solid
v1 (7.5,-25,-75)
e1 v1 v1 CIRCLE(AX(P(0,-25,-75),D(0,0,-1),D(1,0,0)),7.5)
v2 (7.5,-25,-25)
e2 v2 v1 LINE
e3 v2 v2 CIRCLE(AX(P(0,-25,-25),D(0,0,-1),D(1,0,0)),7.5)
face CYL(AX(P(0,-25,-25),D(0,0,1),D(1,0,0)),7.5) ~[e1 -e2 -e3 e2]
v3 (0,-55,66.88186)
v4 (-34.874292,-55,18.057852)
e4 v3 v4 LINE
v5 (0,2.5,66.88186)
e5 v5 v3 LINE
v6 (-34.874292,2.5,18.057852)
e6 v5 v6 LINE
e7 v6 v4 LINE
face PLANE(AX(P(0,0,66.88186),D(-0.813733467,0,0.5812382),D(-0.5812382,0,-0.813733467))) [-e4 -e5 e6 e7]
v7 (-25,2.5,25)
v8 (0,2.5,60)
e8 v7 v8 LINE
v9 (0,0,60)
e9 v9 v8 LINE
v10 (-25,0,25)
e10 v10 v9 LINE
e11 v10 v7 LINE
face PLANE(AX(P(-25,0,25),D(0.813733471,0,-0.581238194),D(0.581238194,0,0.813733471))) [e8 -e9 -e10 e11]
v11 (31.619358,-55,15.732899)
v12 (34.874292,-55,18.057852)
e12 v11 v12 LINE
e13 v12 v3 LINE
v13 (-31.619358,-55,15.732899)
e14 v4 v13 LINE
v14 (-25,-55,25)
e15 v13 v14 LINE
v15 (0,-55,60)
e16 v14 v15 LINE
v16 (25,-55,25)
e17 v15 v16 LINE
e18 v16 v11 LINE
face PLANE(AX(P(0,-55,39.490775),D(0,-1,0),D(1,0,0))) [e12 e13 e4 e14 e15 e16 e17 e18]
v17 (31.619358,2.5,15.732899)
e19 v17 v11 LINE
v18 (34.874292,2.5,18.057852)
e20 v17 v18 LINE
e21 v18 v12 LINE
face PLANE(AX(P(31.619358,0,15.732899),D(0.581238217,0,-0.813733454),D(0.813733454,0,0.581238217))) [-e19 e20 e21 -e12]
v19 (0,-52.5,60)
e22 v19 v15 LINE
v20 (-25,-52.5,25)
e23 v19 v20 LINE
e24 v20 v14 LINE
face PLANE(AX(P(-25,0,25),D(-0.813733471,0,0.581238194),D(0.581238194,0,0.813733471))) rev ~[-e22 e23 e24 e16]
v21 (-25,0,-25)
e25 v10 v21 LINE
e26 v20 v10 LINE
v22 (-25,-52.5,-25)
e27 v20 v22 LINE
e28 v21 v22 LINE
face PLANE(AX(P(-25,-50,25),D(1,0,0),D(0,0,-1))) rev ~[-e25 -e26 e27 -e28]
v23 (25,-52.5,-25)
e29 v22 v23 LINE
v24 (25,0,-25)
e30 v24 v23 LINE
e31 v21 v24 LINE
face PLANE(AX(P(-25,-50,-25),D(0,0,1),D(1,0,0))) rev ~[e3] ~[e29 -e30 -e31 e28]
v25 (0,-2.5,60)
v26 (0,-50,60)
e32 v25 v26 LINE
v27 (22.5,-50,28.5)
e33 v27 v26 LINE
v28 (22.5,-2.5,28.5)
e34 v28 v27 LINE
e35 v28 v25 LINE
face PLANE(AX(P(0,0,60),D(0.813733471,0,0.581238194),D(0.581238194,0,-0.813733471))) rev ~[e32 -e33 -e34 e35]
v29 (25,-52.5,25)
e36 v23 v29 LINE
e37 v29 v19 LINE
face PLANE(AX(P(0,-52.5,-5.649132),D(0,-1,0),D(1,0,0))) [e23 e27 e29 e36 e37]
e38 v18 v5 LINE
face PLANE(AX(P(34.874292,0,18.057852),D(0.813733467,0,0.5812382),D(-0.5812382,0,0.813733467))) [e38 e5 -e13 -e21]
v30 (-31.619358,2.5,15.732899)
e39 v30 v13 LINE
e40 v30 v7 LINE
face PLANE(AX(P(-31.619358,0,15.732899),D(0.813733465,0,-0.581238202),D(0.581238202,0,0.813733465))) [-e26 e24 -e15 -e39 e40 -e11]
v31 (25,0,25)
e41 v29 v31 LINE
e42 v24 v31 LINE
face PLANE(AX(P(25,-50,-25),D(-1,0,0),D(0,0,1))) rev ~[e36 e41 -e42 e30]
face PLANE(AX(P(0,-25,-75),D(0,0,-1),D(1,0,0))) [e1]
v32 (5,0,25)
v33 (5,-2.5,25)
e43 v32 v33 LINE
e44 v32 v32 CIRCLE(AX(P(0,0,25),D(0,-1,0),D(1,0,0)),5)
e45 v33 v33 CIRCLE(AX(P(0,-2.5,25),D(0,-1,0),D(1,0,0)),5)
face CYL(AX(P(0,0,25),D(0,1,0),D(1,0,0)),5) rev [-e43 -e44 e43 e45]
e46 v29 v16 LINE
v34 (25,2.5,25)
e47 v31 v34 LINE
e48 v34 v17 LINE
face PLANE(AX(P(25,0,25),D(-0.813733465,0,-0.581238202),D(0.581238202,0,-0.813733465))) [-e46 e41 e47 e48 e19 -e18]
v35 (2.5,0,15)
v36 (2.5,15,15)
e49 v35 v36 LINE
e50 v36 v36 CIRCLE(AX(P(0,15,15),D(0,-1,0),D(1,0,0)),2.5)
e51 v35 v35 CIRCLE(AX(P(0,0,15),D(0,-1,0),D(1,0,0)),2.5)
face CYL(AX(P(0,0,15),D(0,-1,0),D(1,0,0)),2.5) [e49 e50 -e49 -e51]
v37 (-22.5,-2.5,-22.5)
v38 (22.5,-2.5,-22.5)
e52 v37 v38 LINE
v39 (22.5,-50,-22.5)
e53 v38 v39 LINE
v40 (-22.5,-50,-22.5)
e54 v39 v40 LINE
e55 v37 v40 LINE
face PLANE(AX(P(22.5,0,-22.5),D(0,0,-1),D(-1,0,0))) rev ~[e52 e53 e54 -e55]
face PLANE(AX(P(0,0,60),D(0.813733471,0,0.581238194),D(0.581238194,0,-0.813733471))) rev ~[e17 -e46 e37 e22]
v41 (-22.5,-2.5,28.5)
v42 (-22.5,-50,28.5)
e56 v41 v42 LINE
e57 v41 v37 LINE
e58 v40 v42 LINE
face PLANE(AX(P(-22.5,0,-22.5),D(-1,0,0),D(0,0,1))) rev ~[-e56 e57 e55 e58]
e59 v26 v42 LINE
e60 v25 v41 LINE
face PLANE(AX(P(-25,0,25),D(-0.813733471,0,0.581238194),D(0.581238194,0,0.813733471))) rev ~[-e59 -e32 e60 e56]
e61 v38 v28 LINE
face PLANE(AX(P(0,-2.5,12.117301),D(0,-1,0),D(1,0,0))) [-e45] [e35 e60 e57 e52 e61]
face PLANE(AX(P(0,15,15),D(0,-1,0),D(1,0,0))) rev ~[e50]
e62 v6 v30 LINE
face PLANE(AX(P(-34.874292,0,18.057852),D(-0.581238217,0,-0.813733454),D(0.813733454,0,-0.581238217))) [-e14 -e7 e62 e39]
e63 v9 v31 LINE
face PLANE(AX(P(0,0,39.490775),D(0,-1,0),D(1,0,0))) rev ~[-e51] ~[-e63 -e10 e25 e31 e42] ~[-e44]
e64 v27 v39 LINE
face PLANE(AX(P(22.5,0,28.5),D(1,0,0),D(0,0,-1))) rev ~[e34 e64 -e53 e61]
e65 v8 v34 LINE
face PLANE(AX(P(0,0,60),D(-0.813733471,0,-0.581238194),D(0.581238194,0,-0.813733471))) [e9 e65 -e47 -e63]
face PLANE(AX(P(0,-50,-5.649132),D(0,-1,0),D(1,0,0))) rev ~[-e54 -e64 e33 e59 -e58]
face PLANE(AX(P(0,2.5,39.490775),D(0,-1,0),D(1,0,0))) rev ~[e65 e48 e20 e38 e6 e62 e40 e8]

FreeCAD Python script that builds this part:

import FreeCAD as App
import Part
import Sketcher

V = App.Vector
Q = App.Units.Quantity

doc = App.newDocument("Part")
body = doc.addObject("PartDesign::Body", "Body")

# Sketch on XZ plane
sketch1 = body.newObject("Sketcher::SketchObject", "Sketch")
sketch1.AttachmentSupport = (doc.getObject("XZ_Plane"), [""])
sketch1.MapMode = "FlatFace"
sketch1.addGeometry(Part.LineSegment(V(22, 28, 0), V(0, 60, 0)), False)
sketch1.addGeometry(Part.LineSegment(V(0, 60, 0), V(-22, 28, 0)), False)
sketch1.addGeometry(Part.LineSegment(V(-22, 28, 0), V(-22, -22, 0)), False)
sketch1.addGeometry(Part.LineSegment(V(-22, -22, 0), V(22, -22, 0)), False)
sketch1.addGeometry(Part.LineSegment(V(22, -22, 0), V(22, 28, 0)), False)
sketch1.addGeometry(Part.Circle(V(0, 25, 0), V(0, 0, 1), 5), False)
sketch1.addConstraint(Sketcher.Constraint("Coincident", 0, 2, 1, 1))
sketch1.addConstraint(Sketcher.Constraint("Coincident", 1, 2, 2, 1))
sketch1.addConstraint(Sketcher.Constraint("Coincident", 2, 2, 3, 1))
sketch1.addConstraint(Sketcher.Constraint("Coincident", 3, 2, 4, 1))
sketch1.addConstraint(Sketcher.Constraint("Coincident", 4, 2, 0, 1))
sketch1.addConstraint(Sketcher.Constraint("Vertical", 2))
sketch1.addConstraint(Sketcher.Constraint("Horizontal", 3))
sketch1.addConstraint(Sketcher.Constraint("Vertical", 4))
sketch1.addConstraint(Sketcher.Constraint("Symmetric", 1, 2, 4, 2, -2))
sketch1.addConstraint(Sketcher.Constraint("PointOnObject", 5, 3, -2))
sketch1.addConstraint(Sketcher.Constraint("PointOnObject", 0, 2, -2))
sketch1.addConstraint(Sketcher.Constraint("Diameter", 5, Q("10 mm")))
sketch1.addConstraint(Sketcher.Constraint("DistanceX", 3, 1, 3, 2, Q("45 mm")))
sketch1.addConstraint(Sketcher.Constraint("DistanceY", 2, 2, 2, 1, Q("51 mm")))
sketch1.addConstraint(Sketcher.Constraint("DistanceY", -1, 1, 5, 3, Q("25 mm")))
sketch1.addConstraint(Sketcher.Constraint("DistanceY", -1, 1, 0, 2, Q("60 mm")))
sketch1.addConstraint(Sketcher.Constraint("DistanceY", -1, 1, 1, 2, Q("28.5 mm")))
pad1 = body.newObject("PartDesign::Pad", "Pad")
pad1.Profile = sketch1
pad1.Length = 2.5

# Sketch on XZ plane
sketch2 = body.newObject("Sketcher::SketchObject", "Sketch001")
sketch2.AttachmentSupport = (doc.getObject("XZ_Plane"), [""])
sketch2.MapMode = "FlatFace"
sketch2.addGeometry(Part.LineSegment(V(-25, -25, 0), V(25, -25, 0)), False)
sketch2.addGeometry(Part.LineSegment(V(25, -25, 0), V(25, 25, 0)), False)
sketch2.addGeometry(Part.LineSegment(V(25, 25, 0), V(22.5, 28.5, 0)), False)
sketch2.addGeometry(Part.LineSegment(V(22.5, 28.5, 0), V(22.5, -22.5, 0)), False)
sketch2.addGeometry(Part.LineSegment(V(22.5, -22.5, 0), V(-22.5, -22.5, 0)), False)
sketch2.addGeometry(Part.LineSegment(V(-22.5, -22.5, 0), V(-22.5, 28.5, 0)), False)
sketch2.addGeometry(Part.LineSegment(V(-22.5, 28.5, 0), V(-25, 25, 0)), False)
sketch2.addGeometry(Part.LineSegment(V(-25, 25, 0), V(-25, -25, 0)), False)
sketch2.addConstraint(Sketcher.Constraint("Coincident", 0, 2, 1, 1))
sketch2.addConstraint(Sketcher.Constraint("Coincident", 1, 2, 2, 1))
sketch2.addConstraint(Sketcher.Constraint("Coincident", 2, 2, 3, 1))
sketch2.addConstraint(Sketcher.Constraint("Coincident", 3, 2, 4, 1))
sketch2.addConstraint(Sketcher.Constraint("Coincident", 4, 2, 5, 1))
sketch2.addConstraint(Sketcher.Constraint("Coincident", 5, 2, 6, 1))
sketch2.addConstraint(Sketcher.Constraint("Coincident", 6, 2, 7, 1))
sketch2.addConstraint(Sketcher.Constraint("Coincident", 7, 2, 0, 1))
sketch2.addConstraint(Sketcher.Constraint("Horizontal", 0))
sketch2.addConstraint(Sketcher.Constraint("Vertical", 1))
sketch2.addConstraint(Sketcher.Constraint("Vertical", 3))
sketch2.addConstraint(Sketcher.Constraint("Horizontal", 4))
sketch2.addConstraint(Sketcher.Constraint("Vertical", 5))
sketch2.addConstraint(Sketcher.Constraint("Vertical", 7))
sketch2.addConstraint(Sketcher.Constraint("Symmetric", 0, 2, 6, 2, -1, 1))
sketch2.addConstraint(Sketcher.Constraint("Symmetric", 2, 2, 5, 2, -2))
sketch2.addConstraint(Sketcher.Constraint("Horizontal", 1, 2, 6, 2))
sketch2.addConstraint(Sketcher.Constraint("Equal", 0, 1))
sketch2.addConstraint(Sketcher.Constraint("DistanceX", 0, 1, 0, 2, Q("50 mm")))
sketch2.addConstraint(Sketcher.Constraint("DistanceX", 4, 2, 4, 1, Q("45 mm")))
sketch2.addConstraint(Sketcher.Constraint("DistanceY", 3, 2, 3, 1, Q("51 mm")))
sketch2.addConstraint(Sketcher.Constraint("DistanceY", -1, 1, 2, 2, Q("28.5 mm")))
pad2 = body.newObject("PartDesign::Pad", "Pad001")
pad2.Profile = sketch2
pad2.Length = 50

# Sketch on XZ plane
sketch3 = body.newObject("Sketcher::SketchObject", "Sketch002")
sketch3.AttachmentSupport = (doc.getObject("XZ_Plane"), [""])
sketch3.MapMode = "FlatFace"
sketch3.AttachmentOffset = App.Placement(V(0, 0, 50), App.Rotation())
sketch3.addGeometry(Part.LineSegment(V(-25, 25, 0), V(-25, -25, 0)), False)
sketch3.addGeometry(Part.LineSegment(V(-25, -25, 0), V(25, -25, 0)), False)
sketch3.addGeometry(Part.LineSegment(V(25, -25, 0), V(25, 25, 0)), False)
sketch3.addGeometry(Part.LineSegment(V(25, 25, 0), V(0, 60, 0)), False)
sketch3.addGeometry(Part.LineSegment(V(0, 60, 0), V(-25, 25, 0)), False)
sketch3.addConstraint(Sketcher.Constraint("Coincident", 0, 2, 1, 1))
sketch3.addConstraint(Sketcher.Constraint("Coincident", 1, 2, 2, 1))
sketch3.addConstraint(Sketcher.Constraint("Coincident", 2, 2, 3, 1))
sketch3.addConstraint(Sketcher.Constraint("Coincident", 3, 2, 4, 1))
sketch3.addConstraint(Sketcher.Constraint("Coincident", 4, 2, 0, 1))
sketch3.addConstraint(Sketcher.Constraint("Vertical", 0))
sketch3.addConstraint(Sketcher.Constraint("Horizontal", 1))
sketch3.addConstraint(Sketcher.Constraint("Vertical", 2))
sketch3.addConstraint(Sketcher.Constraint("Symmetric", 0, 2, 2, 2, -1, 1))
sketch3.addConstraint(Sketcher.Constraint("PointOnObject", 3, 2, -2))
sketch3.addConstraint(Sketcher.Constraint("Horizontal", 2, 2, 4, 2))
sketch3.addConstraint(Sketcher.Constraint("Equal", 1, 0))
sketch3.addConstraint(Sketcher.Constraint("DistanceX", 1, 1, 1, 2, Q("50 mm")))
sketch3.addConstraint(Sketcher.Constraint("DistanceY", -1, 1, 3, 2, Q("60 mm")))
pad3 = body.newObject("PartDesign::Pad", "Pad002")
pad3.Profile = sketch3
pad3.Length = 2.5

# Sketch on XZ plane
sketch4 = body.newObject("Sketcher::SketchObject", "Sketch003")
sketch4.AttachmentSupport = (doc.getObject("XZ_Plane"), [""])
sketch4.MapMode = "FlatFace"
sketch4.addGeometry(Part.LineSegment(V(25, 25, 0), V(31.6, 15.7, 0)), False)
sketch4.addGeometry(Part.LineSegment(V(31.6, 15.7, 0), V(34.9, 18.1, 0)), False)
sketch4.addGeometry(Part.LineSegment(V(34.9, 18.1, 0), V(0, 66.9, 0)), False)
sketch4.addGeometry(Part.LineSegment(V(0, 66.9, 0), V(-34.9, 18.1, 0)), False)
sketch4.addGeometry(Part.LineSegment(V(-34.9, 18.1, 0), V(-31.6, 15.7, 0)), False)
sketch4.addGeometry(Part.LineSegment(V(-31.6, 15.7, 0), V(-25, 25, 0)), False)
sketch4.addGeometry(Part.LineSegment(V(-25, 25, 0), V(0, 60, 0)), False)
sketch4.addGeometry(Part.LineSegment(V(0, 60, 0), V(25, 25, 0)), False)
sketch4.addConstraint(Sketcher.Constraint("Coincident", 0, 2, 1, 1))
sketch4.addConstraint(Sketcher.Constraint("Coincident", 1, 2, 2, 1))
sketch4.addConstraint(Sketcher.Constraint("Coincident", 2, 2, 3, 1))
sketch4.addConstraint(Sketcher.Constraint("Coincident", 3, 2, 4, 1))
sketch4.addConstraint(Sketcher.Constraint("Coincident", 4, 2, 5, 1))
sketch4.addConstraint(Sketcher.Constraint("Coincident", 5, 2, 6, 1))
sketch4.addConstraint(Sketcher.Constraint("Coincident", 6, 2, 7, 1))
sketch4.addConstraint(Sketcher.Constraint("Coincident", 7, 2, 0, 1))
sketch4.addConstraint(Sketcher.Constraint("Symmetric", 1, 2, 3, 2, -2))
sketch4.addConstraint(Sketcher.Constraint("Symmetric", 0, 2, 4, 2, -2))
sketch4.addConstraint(Sketcher.Constraint("Symmetric", 5, 2, 7, 2, -2))
sketch4.addConstraint(Sketcher.Constraint("PointOnObject", 2, 2, -2))
sketch4.addConstraint(Sketcher.Constraint("PointOnObject", 6, 2, -2))
sketch4.addConstraint(Sketcher.Constraint("Perpendicular", 0, 1))
sketch4.addConstraint(Sketcher.Constraint("Perpendicular", 1, 2))
sketch4.addConstraint(Sketcher.Constraint("Parallel", 5, 6))
sketch4.addConstraint(Sketcher.Constraint("Distance", 1, Q("4 mm")))
sketch4.addConstraint(Sketcher.Constraint("Distance", 2, Q("60 mm")))
sketch4.addConstraint(Sketcher.Constraint("DistanceX", 5, 2, -1, 1, Q("25 mm")))
sketch4.addConstraint(Sketcher.Constraint("DistanceY", -1, 1, 5, 2, Q("25 mm")))
sketch4.addConstraint(Sketcher.Constraint("DistanceY", -1, 1, 6, 2, Q("60 mm")))
pad4 = body.newObject("PartDesign::Pad", "Pad003")
pad4.Profile = sketch4
pad4.Length = 55

# Sketch on XZ plane
sketch5 = body.newObject("Sketcher::SketchObject", "Sketch004")
sketch5.AttachmentSupport = (doc.getObject("XZ_Plane"), [""])
sketch5.MapMode = "FlatFace"
sketch5.addGeometry(Part.LineSegment(V(25, 25, 0), V(31.6, 15.7, 0)), False)
sketch5.addGeometry(Part.LineSegment(V(31.6, 15.7, 0), V(34.9, 18.1, 0)), False)
sketch5.addGeometry(Part.LineSegment(V(34.9, 18.1, 0), V(0, 66.9, 0)), False)
sketch5.addGeometry(Part.LineSegment(V(0, 66.9, 0), V(-34.9, 18.1, 0)), False)
sketch5.addGeometry(Part.LineSegment(V(-34.9, 18.1, 0), V(-31.6, 15.7, 0)), False)
sketch5.addGeometry(Part.LineSegment(V(-31.6, 15.7, 0), V(-25, 25, 0)), False)
sketch5.addGeometry(Part.LineSegment(V(-25, 25, 0), V(0, 60, 0)), False)
sketch5.addGeometry(Part.LineSegment(V(0, 60, 0), V(25, 25, 0)), False)
sketch5.addConstraint(Sketcher.Constraint("Coincident", 0, 2, 1, 1))
sketch5.addConstraint(Sketcher.Constraint("Coincident", 1, 2, 2, 1))
sketch5.addConstraint(Sketcher.Constraint("Coincident", 2, 2, 3, 1))
sketch5.addConstraint(Sketcher.Constraint("Coincident", 3, 2, 4, 1))
sketch5.addConstraint(Sketcher.Constraint("Coincident", 4, 2, 5, 1))
sketch5.addConstraint(Sketcher.Constraint("Coincident", 5, 2, 6, 1))
sketch5.addConstraint(Sketcher.Constraint("Coincident", 6, 2, 7, 1))
sketch5.addConstraint(Sketcher.Constraint("Coincident", 7, 2, 0, 1))
sketch5.addConstraint(Sketcher.Constraint("Symmetric", 1, 2, 3, 2, -2))
sketch5.addConstraint(Sketcher.Constraint("Symmetric", 0, 2, 4, 2, -2))
sketch5.addConstraint(Sketcher.Constraint("Symmetric", 5, 2, 7, 2, -2))
sketch5.addConstraint(Sketcher.Constraint("PointOnObject", 2, 2, -2))
sketch5.addConstraint(Sketcher.Constraint("PointOnObject", 6, 2, -2))
sketch5.addConstraint(Sketcher.Constraint("Perpendicular", 0, 1))
sketch5.addConstraint(Sketcher.Constraint("Perpendicular", 1, 2))
sketch5.addConstraint(Sketcher.Constraint("Parallel", 5, 6))
sketch5.addConstraint(Sketcher.Constraint("Distance", 1, Q("4 mm")))
sketch5.addConstraint(Sketcher.Constraint("Distance", 2, Q("60 mm")))
sketch5.addConstraint(Sketcher.Constraint("DistanceX", 5, 2, -1, 1, Q("25 mm")))
sketch5.addConstraint(Sketcher.Constraint("DistanceY", -1, 1, 5, 2, Q("25 mm")))
sketch5.addConstraint(Sketcher.Constraint("DistanceY", -1, 1, 6, 2, Q("60 mm")))
pad5 = body.newObject("PartDesign::Pad", "Pad004")
pad5.Profile = sketch5
pad5.Length = 2.5
pad5.Reversed = True

# Sketch on XZ plane
sketch6 = body.newObject("Sketcher::SketchObject", "Sketch005")
sketch6.AttachmentSupport = (doc.getObject("XZ_Plane"), [""])
sketch6.MapMode = "FlatFace"
sketch6.addGeometry(Part.Circle(V(0, 15, 0), V(0, 0, 1), 2.5), False)
sketch6.addConstraint(Sketcher.Constraint("PointOnObject", 0, 3, -2))
sketch6.addConstraint(Sketcher.Constraint("Diameter", 0, Q("5 mm")))
sketch6.addConstraint(Sketcher.Constraint("DistanceY", -1, 1, 0, 3, Q("15 mm")))
pad6 = body.newObject("PartDesign::Pad", "Pad005")
pad6.Profile = sketch6
pad6.Length = 15
pad6.Reversed = True

# Sketch on XY plane
sketch7 = body.newObject("Sketcher::SketchObject", "Sketch006")
sketch7.AttachmentSupport = (doc.getObject("XY_Plane"), [""])
sketch7.MapMode = "FlatFace"
sketch7.AttachmentOffset = App.Placement(V(0, 0, -25), App.Rotation())
sketch7.addGeometry(Part.Circle(V(0, -25, 0), V(0, 0, 1), 8), False)
sketch7.addConstraint(Sketcher.Constraint("PointOnObject", 0, 3, -2))
sketch7.addConstraint(Sketcher.Constraint("Diameter", 0, Q("15 mm")))
sketch7.addConstraint(Sketcher.Constraint("DistanceY", 0, 3, -1, 1, Q("25 mm")))
pad7 = body.newObject("PartDesign::Pad", "Pad006")
pad7.Profile = sketch7
pad7.Length = 50
pad7.Reversed = True

doc.recompute()
